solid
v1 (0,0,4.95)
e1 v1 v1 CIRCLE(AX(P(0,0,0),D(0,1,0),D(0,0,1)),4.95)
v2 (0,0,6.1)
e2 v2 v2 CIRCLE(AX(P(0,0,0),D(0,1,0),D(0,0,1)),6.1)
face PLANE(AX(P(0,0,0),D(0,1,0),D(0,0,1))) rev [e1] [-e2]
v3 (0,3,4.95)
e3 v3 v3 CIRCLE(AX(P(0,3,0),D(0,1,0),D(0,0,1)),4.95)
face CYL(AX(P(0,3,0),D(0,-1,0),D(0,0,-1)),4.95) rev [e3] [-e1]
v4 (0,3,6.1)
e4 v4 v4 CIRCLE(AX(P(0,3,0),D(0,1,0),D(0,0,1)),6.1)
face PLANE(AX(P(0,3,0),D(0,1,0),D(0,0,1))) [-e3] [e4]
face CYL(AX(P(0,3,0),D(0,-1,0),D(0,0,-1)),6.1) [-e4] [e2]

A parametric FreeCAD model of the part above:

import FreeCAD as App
import Part
import Sketcher
Q = App.Units.Quantity

doc = App.newDocument("Part")
body = doc.addObject("PartDesign::Body", "Body")

sketch1 = body.newObject("Sketcher::SketchObject", "Sketch")
sketch1.AttachmentSupport = (doc.getObject("XZ_Plane"), [""])
sketch1.MapMode = "FlatFace"
sketch1.addGeometry(Part.Circle(App.Vector(0, 0, 0), App.Vector(0, 0, 1), 6.1), False)
sketch1.addGeometry(Part.Circle(App.Vector(0, 0, 0), App.Vector(0, 0, 1), 4.95), False)
sketch1.addConstraint(Sketcher.Constraint("Coincident", 0, 3, -1, 1))
sketch1.addConstraint(Sketcher.Constraint("Coincident", 1, 3, -1, 1))
sketch1.addConstraint(Sketcher.Constraint("Diameter", 0, Q("12.2 mm")))
sketch1.addConstraint(Sketcher.Constraint("Diameter", 1, Q("9.9 mm")))
pad1 = body.newObject("PartDesign::Pad", "Pad")
pad1.Profile = sketch1
pad1.Length = 3
pad1.Reversed = True

doc.recompute()
